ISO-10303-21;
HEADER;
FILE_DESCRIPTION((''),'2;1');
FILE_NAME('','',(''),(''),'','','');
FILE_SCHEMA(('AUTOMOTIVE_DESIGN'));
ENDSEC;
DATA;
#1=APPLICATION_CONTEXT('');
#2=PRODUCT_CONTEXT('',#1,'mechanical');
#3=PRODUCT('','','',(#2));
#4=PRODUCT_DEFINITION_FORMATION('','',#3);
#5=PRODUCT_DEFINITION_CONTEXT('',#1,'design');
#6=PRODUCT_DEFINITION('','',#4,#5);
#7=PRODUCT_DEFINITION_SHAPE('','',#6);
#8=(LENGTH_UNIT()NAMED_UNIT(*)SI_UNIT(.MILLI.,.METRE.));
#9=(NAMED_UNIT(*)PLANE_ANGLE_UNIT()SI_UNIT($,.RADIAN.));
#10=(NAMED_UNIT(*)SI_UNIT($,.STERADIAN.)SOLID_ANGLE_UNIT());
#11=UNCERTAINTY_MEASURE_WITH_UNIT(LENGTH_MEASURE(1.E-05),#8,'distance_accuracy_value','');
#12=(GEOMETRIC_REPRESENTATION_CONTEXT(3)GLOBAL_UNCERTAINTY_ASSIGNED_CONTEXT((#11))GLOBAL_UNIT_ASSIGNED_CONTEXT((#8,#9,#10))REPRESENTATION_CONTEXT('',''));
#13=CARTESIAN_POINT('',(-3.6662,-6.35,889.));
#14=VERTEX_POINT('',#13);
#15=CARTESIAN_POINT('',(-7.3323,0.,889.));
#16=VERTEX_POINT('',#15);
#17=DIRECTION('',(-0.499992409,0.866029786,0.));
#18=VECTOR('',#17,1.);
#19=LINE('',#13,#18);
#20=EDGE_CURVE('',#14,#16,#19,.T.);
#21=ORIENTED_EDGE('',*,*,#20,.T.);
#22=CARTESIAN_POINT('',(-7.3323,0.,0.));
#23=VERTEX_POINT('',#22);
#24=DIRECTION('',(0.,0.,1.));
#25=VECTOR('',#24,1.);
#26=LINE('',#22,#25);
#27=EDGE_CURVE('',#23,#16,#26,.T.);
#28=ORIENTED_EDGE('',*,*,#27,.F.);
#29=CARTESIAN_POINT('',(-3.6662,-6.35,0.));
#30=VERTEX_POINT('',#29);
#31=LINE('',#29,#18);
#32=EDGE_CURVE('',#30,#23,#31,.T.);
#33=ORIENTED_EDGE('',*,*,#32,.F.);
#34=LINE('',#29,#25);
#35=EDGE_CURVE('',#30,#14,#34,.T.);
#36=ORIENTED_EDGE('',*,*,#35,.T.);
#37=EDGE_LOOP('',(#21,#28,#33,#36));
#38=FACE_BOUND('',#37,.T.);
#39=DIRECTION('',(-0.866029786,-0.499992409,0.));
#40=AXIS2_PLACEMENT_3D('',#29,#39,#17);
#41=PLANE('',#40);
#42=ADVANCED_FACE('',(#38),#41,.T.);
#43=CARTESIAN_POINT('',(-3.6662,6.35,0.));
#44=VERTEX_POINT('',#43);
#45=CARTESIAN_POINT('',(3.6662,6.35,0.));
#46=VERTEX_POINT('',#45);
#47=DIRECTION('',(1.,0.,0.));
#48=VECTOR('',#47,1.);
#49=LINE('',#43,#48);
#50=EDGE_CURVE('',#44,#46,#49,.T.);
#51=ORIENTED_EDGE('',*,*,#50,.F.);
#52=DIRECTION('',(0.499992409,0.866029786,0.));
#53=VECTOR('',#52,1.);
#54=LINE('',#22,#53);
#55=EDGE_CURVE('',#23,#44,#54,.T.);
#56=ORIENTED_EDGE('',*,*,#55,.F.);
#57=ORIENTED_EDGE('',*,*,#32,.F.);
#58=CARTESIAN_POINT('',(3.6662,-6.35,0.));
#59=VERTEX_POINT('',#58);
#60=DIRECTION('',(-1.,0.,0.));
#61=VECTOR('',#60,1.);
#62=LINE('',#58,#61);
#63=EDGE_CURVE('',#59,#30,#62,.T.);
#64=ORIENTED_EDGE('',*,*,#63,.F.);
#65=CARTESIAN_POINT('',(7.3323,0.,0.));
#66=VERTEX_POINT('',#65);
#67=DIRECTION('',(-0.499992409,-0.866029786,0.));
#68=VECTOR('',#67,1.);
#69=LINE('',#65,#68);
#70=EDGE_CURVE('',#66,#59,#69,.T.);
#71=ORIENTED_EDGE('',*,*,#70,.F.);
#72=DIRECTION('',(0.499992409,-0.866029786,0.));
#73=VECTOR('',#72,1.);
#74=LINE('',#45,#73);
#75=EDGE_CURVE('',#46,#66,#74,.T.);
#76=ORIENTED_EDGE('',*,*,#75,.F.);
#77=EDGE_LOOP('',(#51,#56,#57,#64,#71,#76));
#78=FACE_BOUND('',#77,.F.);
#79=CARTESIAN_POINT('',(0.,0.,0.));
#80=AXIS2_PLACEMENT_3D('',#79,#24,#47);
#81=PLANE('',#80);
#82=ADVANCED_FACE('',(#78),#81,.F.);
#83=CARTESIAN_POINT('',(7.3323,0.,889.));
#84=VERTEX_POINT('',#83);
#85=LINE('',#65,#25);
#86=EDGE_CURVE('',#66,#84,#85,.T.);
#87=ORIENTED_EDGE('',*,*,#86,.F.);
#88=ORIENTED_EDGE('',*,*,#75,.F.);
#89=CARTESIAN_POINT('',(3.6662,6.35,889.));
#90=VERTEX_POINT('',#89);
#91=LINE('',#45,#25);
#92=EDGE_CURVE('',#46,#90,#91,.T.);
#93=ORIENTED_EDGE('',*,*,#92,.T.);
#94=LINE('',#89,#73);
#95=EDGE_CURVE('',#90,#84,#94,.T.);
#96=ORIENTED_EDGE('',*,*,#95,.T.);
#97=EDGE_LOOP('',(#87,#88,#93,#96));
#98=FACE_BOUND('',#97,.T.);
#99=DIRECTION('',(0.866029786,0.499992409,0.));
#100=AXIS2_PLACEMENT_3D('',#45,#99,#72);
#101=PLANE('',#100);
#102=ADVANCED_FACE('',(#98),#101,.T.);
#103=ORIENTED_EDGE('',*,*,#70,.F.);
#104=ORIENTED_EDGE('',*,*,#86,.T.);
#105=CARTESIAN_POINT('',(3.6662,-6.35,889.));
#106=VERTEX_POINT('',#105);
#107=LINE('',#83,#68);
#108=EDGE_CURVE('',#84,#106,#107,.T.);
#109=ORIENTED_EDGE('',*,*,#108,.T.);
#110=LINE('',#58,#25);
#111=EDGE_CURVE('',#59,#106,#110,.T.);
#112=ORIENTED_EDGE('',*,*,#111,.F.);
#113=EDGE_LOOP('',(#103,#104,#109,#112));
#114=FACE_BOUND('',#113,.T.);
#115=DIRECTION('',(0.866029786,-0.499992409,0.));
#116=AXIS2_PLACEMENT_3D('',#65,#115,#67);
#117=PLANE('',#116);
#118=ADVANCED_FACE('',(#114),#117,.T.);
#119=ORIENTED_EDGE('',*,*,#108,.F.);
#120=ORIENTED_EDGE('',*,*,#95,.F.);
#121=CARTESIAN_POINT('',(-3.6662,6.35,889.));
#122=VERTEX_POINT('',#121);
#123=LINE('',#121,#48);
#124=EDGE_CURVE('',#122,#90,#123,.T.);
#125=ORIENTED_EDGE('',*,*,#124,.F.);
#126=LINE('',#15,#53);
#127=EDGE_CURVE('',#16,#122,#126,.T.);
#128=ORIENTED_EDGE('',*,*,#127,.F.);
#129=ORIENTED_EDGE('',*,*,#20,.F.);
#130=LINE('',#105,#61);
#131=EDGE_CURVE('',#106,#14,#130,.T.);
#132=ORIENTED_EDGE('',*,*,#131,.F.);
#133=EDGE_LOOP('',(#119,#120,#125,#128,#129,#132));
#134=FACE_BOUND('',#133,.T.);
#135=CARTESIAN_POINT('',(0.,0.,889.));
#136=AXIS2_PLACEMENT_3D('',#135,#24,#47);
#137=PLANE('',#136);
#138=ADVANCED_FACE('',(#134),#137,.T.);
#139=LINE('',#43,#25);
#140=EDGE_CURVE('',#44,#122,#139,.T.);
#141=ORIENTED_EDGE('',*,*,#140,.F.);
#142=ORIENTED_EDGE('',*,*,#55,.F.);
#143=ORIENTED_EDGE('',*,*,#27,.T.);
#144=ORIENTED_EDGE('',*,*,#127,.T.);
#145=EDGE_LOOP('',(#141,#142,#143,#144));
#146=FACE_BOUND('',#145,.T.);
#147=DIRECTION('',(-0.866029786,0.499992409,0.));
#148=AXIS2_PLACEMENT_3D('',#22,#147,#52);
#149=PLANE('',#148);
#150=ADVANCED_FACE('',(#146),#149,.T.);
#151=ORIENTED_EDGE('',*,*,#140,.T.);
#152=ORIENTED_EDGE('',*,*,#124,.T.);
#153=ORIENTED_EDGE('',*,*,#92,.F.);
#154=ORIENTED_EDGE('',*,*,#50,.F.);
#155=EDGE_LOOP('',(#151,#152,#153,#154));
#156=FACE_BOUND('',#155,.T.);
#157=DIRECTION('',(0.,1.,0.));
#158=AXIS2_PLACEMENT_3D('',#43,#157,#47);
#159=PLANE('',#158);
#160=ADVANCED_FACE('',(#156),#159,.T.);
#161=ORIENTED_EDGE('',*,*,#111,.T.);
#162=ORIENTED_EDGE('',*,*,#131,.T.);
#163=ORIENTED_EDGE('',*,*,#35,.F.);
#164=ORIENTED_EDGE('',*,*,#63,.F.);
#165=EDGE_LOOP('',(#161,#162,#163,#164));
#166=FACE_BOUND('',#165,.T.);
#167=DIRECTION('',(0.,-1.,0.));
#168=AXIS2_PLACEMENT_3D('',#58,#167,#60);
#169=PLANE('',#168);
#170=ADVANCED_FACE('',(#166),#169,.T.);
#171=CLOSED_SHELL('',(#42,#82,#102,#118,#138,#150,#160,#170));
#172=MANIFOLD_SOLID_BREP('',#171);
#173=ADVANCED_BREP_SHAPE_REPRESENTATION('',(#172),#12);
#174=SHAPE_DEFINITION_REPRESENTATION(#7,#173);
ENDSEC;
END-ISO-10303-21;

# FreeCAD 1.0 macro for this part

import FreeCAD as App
import Part
import Sketcher
Q = App.Units.Quantity

doc = App.newDocument("Part")
params = doc.addObject("Spreadsheet::Sheet", "Params")
for row, (alias, value) in enumerate([
    ("pad1_length", "35 in"),
], start=1):
    params.set(f"A{row}", alias)
    params.set(f"B{row}", "=" + value)
    params.setAlias(f"B{row}", alias)

body = doc.addObject("PartDesign::Body", "Body")

sketch1 = doc.addObject("Sketcher::SketchObject", "Sketch")
body.addObject(sketch1)
sketch1.AttachmentSupport = (doc.XY_Plane, [""])
sketch1.MapMode = "FlatFace"
sketch1.addGeometry([
    Part.LineSegment(App.Vector(7, 0, 0), App.Vector(4, 6, 0)),
    Part.LineSegment(App.Vector(4, 6, 0), App.Vector(-4, 6, 0)),
    Part.LineSegment(App.Vector(-4, 6, 0), App.Vector(-7, 0, 0)),
    Part.LineSegment(App.Vector(-7, 0, 0), App.Vector(-4, -6, 0)),
    Part.LineSegment(App.Vector(-4, -6, 0), App.Vector(4, -6, 0)),
    Part.LineSegment(App.Vector(4, -6, 0), App.Vector(7, 0, 0)),
], False)
sketch1.addConstraint([
    Sketcher.Constraint("Coincident", 0, 2, 1, 1),
    Sketcher.Constraint("Coincident", 1, 2, 2, 1),
    Sketcher.Constraint("Coincident", 2, 2, 3, 1),
    Sketcher.Constraint("Coincident", 3, 2, 4, 1),
    Sketcher.Constraint("Coincident", 4, 2, 5, 1),
    Sketcher.Constraint("Coincident", 5, 2, 0, 1),
    Sketcher.Constraint("Horizontal", 1),
    Sketcher.Constraint("Horizontal", 4),
    Sketcher.Constraint("Symmetric", 0, 2, 3, 2, -1, 1),
    Sketcher.Constraint("Symmetric", 2, 2, 5, 2, -1, 1),
    Sketcher.Constraint("PointOnObject", 2, 2, -1),
    Sketcher.Constraint("Parallel", 2, 5),
    Sketcher.Constraint("Vertical", 1, 2, 3, 2),
    Sketcher.Constraint("DistanceY", 3, 2, 1, 2, Q("0.5 in")),
    Sketcher.Constraint("Angle", 0, Q("119.9995 deg")),
    Sketcher.Constraint("DistanceX", 2, 2, 0, 2, Q("0.433 in")),
])
pad1 = doc.addObject("PartDesign::Pad", "Pad")
body.addObject(pad1)
pad1.Profile = sketch1
pad1.setExpression("Length", "Params.pad1_length")

doc.recompute()
